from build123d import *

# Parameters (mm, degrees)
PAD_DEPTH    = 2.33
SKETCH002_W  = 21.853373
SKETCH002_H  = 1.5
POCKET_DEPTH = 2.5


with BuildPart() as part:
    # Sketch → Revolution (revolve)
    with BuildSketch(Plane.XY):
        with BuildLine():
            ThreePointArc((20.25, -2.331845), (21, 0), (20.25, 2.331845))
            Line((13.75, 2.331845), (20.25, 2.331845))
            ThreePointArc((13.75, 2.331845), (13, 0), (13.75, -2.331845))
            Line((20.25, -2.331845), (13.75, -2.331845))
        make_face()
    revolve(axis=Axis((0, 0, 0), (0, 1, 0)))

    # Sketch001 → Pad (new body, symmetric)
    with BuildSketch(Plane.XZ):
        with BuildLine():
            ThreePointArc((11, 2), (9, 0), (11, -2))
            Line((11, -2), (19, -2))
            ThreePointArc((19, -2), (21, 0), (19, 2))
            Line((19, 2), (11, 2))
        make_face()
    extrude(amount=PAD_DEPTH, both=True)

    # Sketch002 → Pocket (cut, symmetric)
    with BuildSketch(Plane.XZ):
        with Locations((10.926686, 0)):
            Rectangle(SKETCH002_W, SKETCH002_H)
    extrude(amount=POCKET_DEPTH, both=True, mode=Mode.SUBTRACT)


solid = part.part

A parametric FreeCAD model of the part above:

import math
import FreeCAD as App
import Part
import Sketcher
Q = App.Units.Quantity

doc = App.newDocument("Part")
body = doc.addObject("PartDesign::Body", "Body")

# Sketch on XY plane
sketch1 = doc.addObject("Sketcher::SketchObject", "Sketch")
body.addObject(sketch1)
sketch1.AttachmentSupport = (doc.XY_Plane, [""])
sketch1.MapMode = "FlatFace"
sketch1.addGeometry([
    Part.ArcOfCircle(Part.Circle(App.Vector(17, 0, 0), App.Vector(0, 0, 1), 4), math.radians(-36), math.radians(36)),
    Part.LineSegment(App.Vector(20.2, 2.3, 0), App.Vector(13.8, 2.3, 0)),
    Part.ArcOfCircle(Part.Circle(App.Vector(17, 0, 0), App.Vector(0, 0, 1), 4), math.radians(144), math.radians(216)),
    Part.LineSegment(App.Vector(13.8, -2.3, 0), App.Vector(20.2, -2.3, 0)),
], False)
sketch1.addConstraint([
    Sketcher.Constraint("Coincident", 0, 2, 1, 1),
    Sketcher.Constraint("Coincident", 1, 2, 2, 1),
    Sketcher.Constraint("Coincident", 2, 2, 3, 1),
    Sketcher.Constraint("Coincident", 3, 2, 0, 1),
    Sketcher.Constraint("Horizontal", 1),
    Sketcher.Constraint("Horizontal", 3),
    Sketcher.Constraint("Coincident", 2, 3, 0, 3),
    Sketcher.Constraint("Equal", 0, 2),
    Sketcher.Constraint("Symmetric", 1, 2, 2, 2, -1),
    Sketcher.Constraint("Radius", 0, Q("4.000001 mm")),
    Sketcher.Constraint("DistanceX", 1, 2, 1, 1, Q("6.5 mm")),
    Sketcher.Constraint("DistanceX", -1, 1, 0, 3, Q("16.999999 mm")),
])
revolution = doc.addObject("PartDesign::Revolution", "Revolution")
body.addObject(revolution)
revolution.Profile = sketch1
revolution.ReferenceAxis = (sketch1, ["V_Axis"])
revolution.Angle = 360

# Sketch on XZ plane
sketch2 = doc.addObject("Sketcher::SketchObject", "Sketch001")
body.addObject(sketch2)
sketch2.AttachmentSupport = (doc.XZ_Plane, [""])
sketch2.MapMode = "FlatFace"
sketch2.addGeometry([
    Part.ArcOfCircle(Part.Circle(App.Vector(11, 0, 0), App.Vector(0, 0, 1), 2), math.radians(90), math.radians(270)),
    Part.LineSegment(App.Vector(11, -2, 0), App.Vector(19, -2, 0)),
    Part.ArcOfCircle(Part.Circle(App.Vector(19, 0, 0), App.Vector(0, 0, 1), 2), math.radians(-90), math.radians(90)),
    Part.LineSegment(App.Vector(19, 2, 0), App.Vector(11, 2, 0)),
], False)
sketch2.addConstraint([
    Sketcher.Constraint("Tangent", 0, 2, 1, 1),
    Sketcher.Constraint("Tangent", 1, 2, 2, 1),
    Sketcher.Constraint("Tangent", 2, 2, 3, 1),
    Sketcher.Constraint("Tangent", 3, 2, 0, 1),
    Sketcher.Constraint("Horizontal", 1),
    Sketcher.Constraint("Horizontal", 3),
    Sketcher.Constraint("PointOnObject", 0, 3, -1),
    Sketcher.Constraint("Radius", 0, Q("2 mm")),
    Sketcher.Constraint("DistanceX", 1, 1, 1, 2, Q("8 mm")),
    Sketcher.Constraint("DistanceX", -1, 1, 0, 3, Q("11 mm")),
])
pad1 = doc.addObject("PartDesign::Pad", "Pad")
body.addObject(pad1)
pad1.Profile = sketch2
pad1.Length = 4.66
pad1.Midplane = True

# Sketch on XZ plane
sketch3 = doc.addObject("Sketcher::SketchObject", "Sketch002")
body.addObject(sketch3)
sketch3.AttachmentSupport = (doc.XZ_Plane, [""])
sketch3.MapMode = "FlatFace"
sketch3.addGeometry([
    Part.LineSegment(App.Vector(0, 0.8, 0), App.Vector(0, -0.8, 0)),
    Part.LineSegment(App.Vector(0, -0.8, 0), App.Vector(21.9, -0.8, 0)),
    Part.LineSegment(App.Vector(21.9, -0.8, 0), App.Vector(21.9, 0.8, 0)),
    Part.LineSegment(App.Vector(21.9, 0.8, 0), App.Vector(0, 0.8, 0)),
], False)
sketch3.addConstraint([
    Sketcher.Constraint("Coincident", 0, 2, 1, 1),
    Sketcher.Constraint("Coincident", 1, 2, 2, 1),
    Sketcher.Constraint("Coincident", 2, 2, 3, 1),
    Sketcher.Constraint("Coincident", 3, 2, 0, 1),
    Sketcher.Constraint("Vertical", 0),
    Sketcher.Constraint("Horizontal", 1),
    Sketcher.Constraint("Vertical", 2),
    Sketcher.Constraint("Horizontal", 3),
    Sketcher.Constraint("Symmetric", 0, 2, 3, 2, -1, 1),
    Sketcher.Constraint("DistanceY", 0, 2, 0, 1, Q("1.5 mm")),
    Sketcher.Constraint("DistanceX", 1, 1, 1, 2, Q("21.853373 mm")),
])
pocket1 = doc.addObject("PartDesign::Pocket", "Pocket")
body.addObject(pocket1)
pocket1.Profile = sketch3
pocket1.Length = 5
pocket1.Midplane = True

doc.recompute()
